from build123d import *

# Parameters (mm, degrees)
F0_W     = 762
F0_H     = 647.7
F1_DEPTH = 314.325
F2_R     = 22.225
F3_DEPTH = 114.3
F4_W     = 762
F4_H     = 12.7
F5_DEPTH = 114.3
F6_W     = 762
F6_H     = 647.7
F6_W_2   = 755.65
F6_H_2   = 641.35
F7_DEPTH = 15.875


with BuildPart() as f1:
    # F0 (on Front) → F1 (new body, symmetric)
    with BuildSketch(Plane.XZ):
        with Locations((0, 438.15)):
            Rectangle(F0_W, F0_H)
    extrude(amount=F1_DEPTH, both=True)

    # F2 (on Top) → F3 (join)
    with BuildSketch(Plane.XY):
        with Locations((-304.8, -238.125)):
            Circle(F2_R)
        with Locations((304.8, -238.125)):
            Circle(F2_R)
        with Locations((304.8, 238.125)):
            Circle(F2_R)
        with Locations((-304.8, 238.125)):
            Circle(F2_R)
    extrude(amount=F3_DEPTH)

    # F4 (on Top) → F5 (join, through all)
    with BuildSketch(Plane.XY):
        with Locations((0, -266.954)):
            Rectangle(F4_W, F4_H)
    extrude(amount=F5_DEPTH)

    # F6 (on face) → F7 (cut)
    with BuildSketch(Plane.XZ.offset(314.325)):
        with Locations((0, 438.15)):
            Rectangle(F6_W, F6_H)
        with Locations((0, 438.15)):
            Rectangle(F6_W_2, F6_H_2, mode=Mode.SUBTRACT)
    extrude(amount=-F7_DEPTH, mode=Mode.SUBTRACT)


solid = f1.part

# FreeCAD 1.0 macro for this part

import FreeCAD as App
import Part
import Sketcher

V = App.Vector
Q = App.Units.Quantity


def add_polygon(sketch, points):
    """Adds a closed chain of lines whose ends are joined by coincident constraints."""
    first, n = sketch.GeometryCount, len(points)
    for a, b in zip(points, points[1:] + points[:1]):
        sketch.addGeometry(Part.LineSegment(App.Vector(*a, 0), App.Vector(*b, 0)), False)
    for i in range(n):
        sketch.addConstraint(Sketcher.Constraint("Coincident", first + i, 2, first + (i + 1) % n, 1))

doc = App.newDocument("Part")
body = doc.addObject("PartDesign::Body", "Body")

# Sketch on XZ plane
sketch1 = doc.addObject("Sketcher::SketchObject", "Sketch")
body.addObject(sketch1)
sketch1.AttachmentSupport = (doc.XZ_Plane, [""])
sketch1.MapMode = "FlatFace"
add_polygon(sketch1, [(-381, 762), (-381, 114), (381, 114), (381, 762)])  # lines 0-3
sketch1.addConstraint(Sketcher.Constraint("Vertical", 0))
sketch1.addConstraint(Sketcher.Constraint("Horizontal", 1))
sketch1.addConstraint(Sketcher.Constraint("Vertical", 2))
sketch1.addConstraint(Sketcher.Constraint("Horizontal", 3))
sketch1.addConstraint(Sketcher.Constraint("DistanceX", 1, 1, 1, 2, Q("30 in")))
sketch1.addConstraint(Sketcher.Constraint("DistanceY", 0, 2, 0, 1, Q("25.5 in")))
sketch1.addConstraint(Sketcher.Constraint("DistanceX", 0, 2, -1, 1, Q("15 in")))
sketch1.addConstraint(Sketcher.Constraint("DistanceY", -1, 1, 2, 2, Q("30 in")))
pad1 = doc.addObject("PartDesign::Pad", "Pad")
body.addObject(pad1)
pad1.Profile = sketch1
pad1.Length = Q("24.75 in")
pad1.Midplane = True

# Sketch on XY plane
sketch2 = doc.addObject("Sketcher::SketchObject", "Sketch001")
body.addObject(sketch2)
sketch2.AttachmentSupport = (doc.XY_Plane, [""])
sketch2.MapMode = "FlatFace"
sketch2.addGeometry(Part.Circle(V(-305, -238, 0), V(0, 0, 1), 22), False)
sketch2.addGeometry(Part.Circle(V(305, -238, 0), V(0, 0, 1), 22), False)
sketch2.addGeometry(Part.Circle(V(305, 238, 0), V(0, 0, 1), 22), False)
sketch2.addGeometry(Part.Circle(V(-305, 238, 0), V(0, 0, 1), 22), False)
sketch2.addConstraint(Sketcher.Constraint("Equal", 0, 1))
sketch2.addConstraint(Sketcher.Constraint("Equal", 1, 2))
sketch2.addConstraint(Sketcher.Constraint("Equal", 2, 3))
sketch2.addConstraint(Sketcher.Constraint("Symmetric", 0, 3, 2, 3, -1, 1))
sketch2.addConstraint(Sketcher.Constraint("Symmetric", 1, 3, 3, 3, -1, 1))
sketch2.addConstraint(Sketcher.Constraint("Symmetric", 0, 3, 1, 3, -2))
sketch2.addConstraint(Sketcher.Constraint("Diameter", 0, Q("1.75 in")))
sketch2.addConstraint(Sketcher.Constraint("DistanceX", 0, 3, -1, 1, Q("12 in")))
sketch2.addConstraint(Sketcher.Constraint("DistanceY", 1, 3, 2, 3, Q("18.75 in")))
pad2 = doc.addObject("PartDesign::Pad", "Pad001")
body.addObject(pad2)
pad2.Profile = sketch2
pad2.Length = Q("4.5 in")

# Sketch on XY plane
sketch3 = doc.addObject("Sketcher::SketchObject", "Sketch002")
body.addObject(sketch3)
sketch3.AttachmentSupport = (doc.XY_Plane, [""])
sketch3.MapMode = "FlatFace"
add_polygon(sketch3, [(-381, -261), (-381, -273), (381, -273), (381, -261)])  # lines 0-3
sketch3.addConstraint(Sketcher.Constraint("Vertical", 0))
sketch3.addConstraint(Sketcher.Constraint("Horizontal", 1))
sketch3.addConstraint(Sketcher.Constraint("Vertical", 2))
sketch3.addConstraint(Sketcher.Constraint("Horizontal", 3))
sketch3.addConstraint(Sketcher.Constraint("DistanceX", 1, 1, 1, 2, Q("30 in")))
sketch3.addConstraint(Sketcher.Constraint("DistanceY", 0, 2, 0, 1, Q("0.5 in")))
sketch3.addConstraint(Sketcher.Constraint("DistanceX", 0, 2, -1, 1, Q("15 in")))
sketch3.addConstraint(Sketcher.Constraint("DistanceY", 0, 2, -1, 1, Q("10.76 in")))
pad3 = doc.addObject("PartDesign::Pad", "Pad002")
body.addObject(pad3)
pad3.Profile = sketch3
pad3.Type = "UpToLast"

# Sketch on XZ plane
sketch4 = doc.addObject("Sketcher::SketchObject", "Sketch003")
body.addObject(sketch4)
sketch4.AttachmentSupport = (doc.XZ_Plane, [""])
sketch4.MapMode = "FlatFace"
sketch4.AttachmentOffset = App.Placement(V(0, 0, 12.375 * 25.4), App.Rotation())
add_polygon(sketch4, [(-381, 762), (-381, 114), (381, 114), (381, 762)])  # lines 0-3
add_polygon(sketch4, [(378, 117), (-378, 117), (-378, 759), (378, 759)])  # lines 4-7
sketch4.addConstraint(Sketcher.Constraint("Vertical", 0))
sketch4.addConstraint(Sketcher.Constraint("Horizontal", 1))
sketch4.addConstraint(Sketcher.Constraint("Vertical", 2))
sketch4.addConstraint(Sketcher.Constraint("Horizontal", 3))
sketch4.addConstraint(Sketcher.Constraint("Horizontal", 4))
sketch4.addConstraint(Sketcher.Constraint("Vertical", 5))
sketch4.addConstraint(Sketcher.Constraint("Horizontal", 6))
sketch4.addConstraint(Sketcher.Constraint("Vertical", 7))
sketch4.addConstraint(Sketcher.Constraint("DistanceX", 1, 1, 1, 2, Q("30 in")))
sketch4.addConstraint(Sketcher.Constraint("DistanceY", 0, 2, 0, 1, Q("25.5 in")))
sketch4.addConstraint(Sketcher.Constraint("DistanceX", 0, 2, -1, 1, Q("15 in")))
sketch4.addConstraint(Sketcher.Constraint("DistanceY", -1, 1, 2, 2, Q("30 in")))
sketch4.addConstraint(Sketcher.Constraint("DistanceX", 4, 2, 4, 1, Q("29.75 in")))
sketch4.addConstraint(Sketcher.Constraint("DistanceY", 5, 1, 5, 2, Q("25.25 in")))
sketch4.addConstraint(Sketcher.Constraint("DistanceX", 4, 2, -1, 1, Q("14.875 in")))
sketch4.addConstraint(Sketcher.Constraint("DistanceY", -1, 1, 4, 2, Q("4.625 in")))
pocket1 = doc.addObject("PartDesign::Pocket", "Pocket")
body.addObject(pocket1)
pocket1.Profile = sketch4
pocket1.Length = Q("0.625 in")

doc.recompute()
